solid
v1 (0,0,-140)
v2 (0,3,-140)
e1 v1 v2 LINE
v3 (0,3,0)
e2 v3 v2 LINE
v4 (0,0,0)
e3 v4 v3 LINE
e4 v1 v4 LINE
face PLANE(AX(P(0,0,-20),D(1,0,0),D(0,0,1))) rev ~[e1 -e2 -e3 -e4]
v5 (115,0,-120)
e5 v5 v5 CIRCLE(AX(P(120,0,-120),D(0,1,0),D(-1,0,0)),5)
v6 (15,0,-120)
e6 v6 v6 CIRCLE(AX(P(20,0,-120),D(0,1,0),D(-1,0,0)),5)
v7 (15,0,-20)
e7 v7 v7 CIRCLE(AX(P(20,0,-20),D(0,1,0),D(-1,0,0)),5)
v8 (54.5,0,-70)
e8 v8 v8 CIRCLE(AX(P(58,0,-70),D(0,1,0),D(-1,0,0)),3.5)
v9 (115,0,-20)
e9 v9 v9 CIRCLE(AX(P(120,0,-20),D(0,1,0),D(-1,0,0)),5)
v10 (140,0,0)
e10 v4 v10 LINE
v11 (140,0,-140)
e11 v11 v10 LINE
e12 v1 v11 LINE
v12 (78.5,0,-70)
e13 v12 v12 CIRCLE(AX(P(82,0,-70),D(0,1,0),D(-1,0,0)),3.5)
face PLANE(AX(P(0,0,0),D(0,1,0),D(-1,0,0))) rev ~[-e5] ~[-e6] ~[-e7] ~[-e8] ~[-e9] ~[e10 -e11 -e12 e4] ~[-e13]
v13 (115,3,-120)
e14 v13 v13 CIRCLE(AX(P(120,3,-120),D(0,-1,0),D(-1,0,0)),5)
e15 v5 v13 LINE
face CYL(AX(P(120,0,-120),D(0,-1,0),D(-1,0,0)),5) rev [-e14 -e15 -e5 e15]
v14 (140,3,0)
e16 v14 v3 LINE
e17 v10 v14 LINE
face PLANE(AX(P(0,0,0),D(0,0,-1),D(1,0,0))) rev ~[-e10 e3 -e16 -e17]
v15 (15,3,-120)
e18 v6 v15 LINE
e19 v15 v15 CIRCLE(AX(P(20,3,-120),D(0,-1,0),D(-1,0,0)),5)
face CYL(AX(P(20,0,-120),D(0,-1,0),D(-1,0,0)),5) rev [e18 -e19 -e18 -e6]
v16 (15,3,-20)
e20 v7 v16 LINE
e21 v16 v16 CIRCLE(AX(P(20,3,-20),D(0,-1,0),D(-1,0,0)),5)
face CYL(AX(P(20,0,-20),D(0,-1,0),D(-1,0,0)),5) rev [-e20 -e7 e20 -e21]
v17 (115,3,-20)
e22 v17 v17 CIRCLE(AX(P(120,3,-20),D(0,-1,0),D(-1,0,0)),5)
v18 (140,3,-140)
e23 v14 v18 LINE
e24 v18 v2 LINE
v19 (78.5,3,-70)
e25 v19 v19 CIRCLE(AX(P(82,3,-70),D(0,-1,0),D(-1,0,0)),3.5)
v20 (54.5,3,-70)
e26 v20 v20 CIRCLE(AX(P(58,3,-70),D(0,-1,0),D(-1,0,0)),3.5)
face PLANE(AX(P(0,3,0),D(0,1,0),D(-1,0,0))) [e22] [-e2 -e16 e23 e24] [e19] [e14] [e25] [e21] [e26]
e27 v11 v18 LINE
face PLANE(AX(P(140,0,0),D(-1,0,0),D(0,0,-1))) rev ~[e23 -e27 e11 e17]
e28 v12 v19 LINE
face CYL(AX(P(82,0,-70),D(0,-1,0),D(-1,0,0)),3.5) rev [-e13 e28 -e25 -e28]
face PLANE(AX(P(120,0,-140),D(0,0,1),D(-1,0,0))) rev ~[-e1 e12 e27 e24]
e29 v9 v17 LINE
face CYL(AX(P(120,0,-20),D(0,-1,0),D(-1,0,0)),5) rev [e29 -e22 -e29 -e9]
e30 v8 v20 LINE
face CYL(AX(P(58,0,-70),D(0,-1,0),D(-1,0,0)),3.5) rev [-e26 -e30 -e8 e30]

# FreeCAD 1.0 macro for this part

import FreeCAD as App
import Part
import Sketcher
from FreeCAD import Vector

doc = App.newDocument("Part")
body = doc.addObject("PartDesign::Body", "Body")

# Sketch on XZ plane
sketch1 = doc.addObject("Sketcher::SketchObject", "Sketch")
body.addObject(sketch1)
sketch1.AttachmentSupport = (doc.XZ_Plane, [""])
sketch1.MapMode = "FlatFace"
sketch1.addGeometry(Part.LineSegment(Vector(0, 0, 0), Vector(140, 0, 0)), False)
sketch1.addGeometry(Part.LineSegment(Vector(140, 0, 0), Vector(140, -140, 0)), False)
sketch1.addGeometry(Part.LineSegment(Vector(140, -140, 0), Vector(0, -140, 0)), False)
sketch1.addGeometry(Part.LineSegment(Vector(0, -140, 0), Vector(0, 0, 0)), False)
sketch1.addGeometry(Part.Circle(Vector(20, -20, 0), Vector(0, 0, 1), 5), False)
sketch1.addGeometry(Part.Circle(Vector(120, -20, 0), Vector(0, 0, 1), 5), False)
sketch1.addGeometry(Part.Circle(Vector(120, -120, 0), Vector(0, 0, 1), 5), False)
sketch1.addGeometry(Part.Circle(Vector(20, -120, 0), Vector(0, 0, 1), 5), False)
sketch1.addGeometry(Part.Circle(Vector(58, -70, 0), Vector(0, 0, 1), 3.5), False)
sketch1.addGeometry(Part.Circle(Vector(82, -70, 0), Vector(0, 0, 1), 3.5), False)
sketch1.addConstraint(Sketcher.Constraint("Coincident", 0, 2, 1, 1))
sketch1.addConstraint(Sketcher.Constraint("Coincident", 1, 2, 2, 1))
sketch1.addConstraint(Sketcher.Constraint("Coincident", 2, 2, 3, 1))
sketch1.addConstraint(Sketcher.Constraint("Coincident", 3, 2, 0, 1))
sketch1.addConstraint(Sketcher.Constraint("Horizontal", 0))
sketch1.addConstraint(Sketcher.Constraint("Vertical", 1))
sketch1.addConstraint(Sketcher.Constraint("Horizontal", 2))
sketch1.addConstraint(Sketcher.Constraint("Vertical", 3))
sketch1.addConstraint(Sketcher.Constraint("Coincident", 3, 2, -1, 1))
sketch1.addConstraint(Sketcher.Constraint("Equal", 4, 5))
sketch1.addConstraint(Sketcher.Constraint("Equal", 5, 6))
sketch1.addConstraint(Sketcher.Constraint("Equal", 6, 7))
sketch1.addConstraint(Sketcher.Constraint("Equal", 8, 9))
sketch1.addConstraint(Sketcher.Constraint("Horizontal", 4, 3, 5, 3))
sketch1.addConstraint(Sketcher.Constraint("Horizontal", 6, 3, 7, 3))
sketch1.addConstraint(Sketcher.Constraint("Horizontal", 8, 3, 9, 3))
sketch1.addConstraint(Sketcher.Constraint("Vertical", 5, 3, 6, 3))
sketch1.addConstraint(Sketcher.Constraint("Vertical", 4, 3, 7, 3))
sketch1.addConstraint(Sketcher.Constraint("Equal", 2, 1))
sketch1.addConstraint(Sketcher.Constraint("Diameter", 4, 10.0))
sketch1.addConstraint(Sketcher.Constraint("Diameter", 8, 7.0))
sketch1.addConstraint(Sketcher.Constraint("DistanceX", 0, 1, 0, 2, 140.0))
sketch1.addConstraint(Sketcher.Constraint("DistanceX", -1, 1, 4, 3, 20.0))
sketch1.addConstraint(Sketcher.Constraint("DistanceY", 4, 3, -1, 1, 20.0))
sketch1.addConstraint(Sketcher.Constraint("DistanceX", 8, 3, 9, 3, 24.0))
sketch1.addConstraint(Sketcher.Constraint("DistanceX", 5, 3, 0, 2, 20.0))
sketch1.addConstraint(Sketcher.Constraint("DistanceY", 1, 2, 6, 3, 20.0))
sketch1.addConstraint(Sketcher.Constraint("DistanceX", -1, 1, 8, 3, 58.0))
sketch1.addConstraint(Sketcher.Constraint("DistanceY", 8, 3, -1, 1, 70.0))
pad1 = doc.addObject("PartDesign::Pad", "Pad")
body.addObject(pad1)
pad1.Profile = sketch1
pad1.Length = 3
pad1.Reversed = True

doc.recompute()
